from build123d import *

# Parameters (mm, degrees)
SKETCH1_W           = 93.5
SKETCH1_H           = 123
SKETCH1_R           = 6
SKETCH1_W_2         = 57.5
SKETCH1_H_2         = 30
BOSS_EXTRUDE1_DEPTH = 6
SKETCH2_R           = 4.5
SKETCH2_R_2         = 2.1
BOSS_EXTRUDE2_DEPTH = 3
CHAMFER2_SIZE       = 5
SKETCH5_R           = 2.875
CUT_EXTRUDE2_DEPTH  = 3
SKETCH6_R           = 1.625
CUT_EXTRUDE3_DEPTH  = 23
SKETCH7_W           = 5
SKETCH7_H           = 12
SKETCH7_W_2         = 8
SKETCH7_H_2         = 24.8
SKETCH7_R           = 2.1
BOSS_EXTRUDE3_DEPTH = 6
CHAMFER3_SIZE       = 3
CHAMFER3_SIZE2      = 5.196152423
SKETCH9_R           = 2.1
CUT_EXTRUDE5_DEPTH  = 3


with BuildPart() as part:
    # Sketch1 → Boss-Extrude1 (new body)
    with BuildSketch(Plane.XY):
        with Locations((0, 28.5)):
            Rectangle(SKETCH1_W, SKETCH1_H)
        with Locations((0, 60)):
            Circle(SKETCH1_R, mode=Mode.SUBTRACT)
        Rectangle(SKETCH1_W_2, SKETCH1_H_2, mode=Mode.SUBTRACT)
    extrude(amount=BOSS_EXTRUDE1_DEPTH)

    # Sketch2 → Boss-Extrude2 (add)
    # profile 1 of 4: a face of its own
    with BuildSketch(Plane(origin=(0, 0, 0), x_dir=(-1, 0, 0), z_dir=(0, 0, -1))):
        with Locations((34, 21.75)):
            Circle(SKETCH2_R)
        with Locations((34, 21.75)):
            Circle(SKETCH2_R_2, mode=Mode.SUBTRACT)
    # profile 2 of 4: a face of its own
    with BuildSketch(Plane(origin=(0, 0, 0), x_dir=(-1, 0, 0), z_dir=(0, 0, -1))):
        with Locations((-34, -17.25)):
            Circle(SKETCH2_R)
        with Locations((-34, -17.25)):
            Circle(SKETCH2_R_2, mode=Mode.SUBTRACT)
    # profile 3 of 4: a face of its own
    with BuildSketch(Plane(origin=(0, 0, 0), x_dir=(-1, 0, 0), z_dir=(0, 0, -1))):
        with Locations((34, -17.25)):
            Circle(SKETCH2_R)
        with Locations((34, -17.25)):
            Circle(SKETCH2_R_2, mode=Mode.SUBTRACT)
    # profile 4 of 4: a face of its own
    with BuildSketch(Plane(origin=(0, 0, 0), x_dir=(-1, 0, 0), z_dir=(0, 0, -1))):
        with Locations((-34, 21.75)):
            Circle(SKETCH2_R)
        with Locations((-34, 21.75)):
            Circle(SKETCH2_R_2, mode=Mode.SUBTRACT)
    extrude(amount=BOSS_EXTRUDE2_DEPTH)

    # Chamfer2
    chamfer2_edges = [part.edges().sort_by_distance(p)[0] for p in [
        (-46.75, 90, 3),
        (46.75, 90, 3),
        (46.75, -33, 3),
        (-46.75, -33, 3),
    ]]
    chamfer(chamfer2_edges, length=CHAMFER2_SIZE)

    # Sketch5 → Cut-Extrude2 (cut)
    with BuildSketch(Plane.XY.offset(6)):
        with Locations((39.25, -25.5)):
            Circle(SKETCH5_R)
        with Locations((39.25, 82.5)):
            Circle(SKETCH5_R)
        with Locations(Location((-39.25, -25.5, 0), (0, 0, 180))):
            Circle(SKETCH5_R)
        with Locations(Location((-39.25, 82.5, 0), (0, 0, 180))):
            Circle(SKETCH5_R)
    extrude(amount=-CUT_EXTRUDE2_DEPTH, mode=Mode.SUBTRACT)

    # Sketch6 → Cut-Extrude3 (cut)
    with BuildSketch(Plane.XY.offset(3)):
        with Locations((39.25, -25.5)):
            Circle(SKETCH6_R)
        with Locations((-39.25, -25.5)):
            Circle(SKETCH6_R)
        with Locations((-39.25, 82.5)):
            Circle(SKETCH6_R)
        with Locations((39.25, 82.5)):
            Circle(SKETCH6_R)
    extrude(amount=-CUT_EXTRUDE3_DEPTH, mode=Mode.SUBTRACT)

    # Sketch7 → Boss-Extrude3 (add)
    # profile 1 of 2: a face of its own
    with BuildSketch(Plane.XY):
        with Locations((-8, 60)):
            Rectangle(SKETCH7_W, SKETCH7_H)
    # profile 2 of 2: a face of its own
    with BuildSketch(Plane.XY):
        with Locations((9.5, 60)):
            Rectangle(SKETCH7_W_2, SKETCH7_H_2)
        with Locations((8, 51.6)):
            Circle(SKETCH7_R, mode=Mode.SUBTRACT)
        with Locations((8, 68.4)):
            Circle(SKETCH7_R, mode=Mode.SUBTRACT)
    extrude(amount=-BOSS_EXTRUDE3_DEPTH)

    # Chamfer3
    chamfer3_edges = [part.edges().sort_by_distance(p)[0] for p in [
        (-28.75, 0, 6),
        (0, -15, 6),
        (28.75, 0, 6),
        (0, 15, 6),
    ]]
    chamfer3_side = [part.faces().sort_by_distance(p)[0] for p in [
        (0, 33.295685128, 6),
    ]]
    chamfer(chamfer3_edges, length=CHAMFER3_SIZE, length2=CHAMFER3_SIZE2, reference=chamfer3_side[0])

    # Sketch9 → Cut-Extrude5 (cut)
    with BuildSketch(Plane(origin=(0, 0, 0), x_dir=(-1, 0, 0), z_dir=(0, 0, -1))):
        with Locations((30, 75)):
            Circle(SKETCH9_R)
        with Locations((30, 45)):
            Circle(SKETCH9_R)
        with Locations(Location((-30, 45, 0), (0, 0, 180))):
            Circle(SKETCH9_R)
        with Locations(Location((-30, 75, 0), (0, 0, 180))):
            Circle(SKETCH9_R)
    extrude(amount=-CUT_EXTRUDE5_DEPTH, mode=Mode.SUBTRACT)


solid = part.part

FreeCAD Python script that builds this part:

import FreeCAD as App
import Part
import Sketcher
from FreeCAD import Vector
Q = App.Units.Quantity


def edges_at(feature, points):
    """Names of the edges that pass closest to the given points."""
    edges = feature.Shape.Edges
    near = lambda p: min(range(len(edges)), key=lambda i: edges[i].distToShape(Part.Vertex(*p))[0])
    return sorted({f"Edge{near(p) + 1}" for p in points})


def add_polygon(sketch, points):
    """Adds a closed chain of lines whose ends are joined by coincident constraints."""
    first, n = sketch.GeometryCount, len(points)
    for a, b in zip(points, points[1:] + points[:1]):
        sketch.addGeometry(Part.LineSegment(App.Vector(*a, 0), App.Vector(*b, 0)), False)
    for i in range(n):
        sketch.addConstraint(Sketcher.Constraint("Coincident", first + i, 2, first + (i + 1) % n, 1))

doc = App.newDocument("Part")
body = doc.addObject("PartDesign::Body", "Body")

# Sketch on XY plane
sketch1 = body.newObject("Sketcher::SketchObject", "Sketch")
sketch1.AttachmentSupport = (doc.getObject("XY_Plane"), [""])
sketch1.MapMode = "FlatFace"
add_polygon(sketch1, [(-47, 90), (-47, -33), (47, -33), (47, 90)])  # lines 0-3
add_polygon(sketch1, [(29, -15), (-29, -15), (-29, 15), (29, 15)])  # lines 4-7
sketch1.addGeometry(Part.Circle(Vector(0, 60, 0), Vector(0, 0, 1), 6), False)  # 8
sketch1.addConstraint(Sketcher.Constraint("Vertical", 0))
sketch1.addConstraint(Sketcher.Constraint("Horizontal", 1))
sketch1.addConstraint(Sketcher.Constraint("Vertical", 2))
sketch1.addConstraint(Sketcher.Constraint("Horizontal", 3))
sketch1.addConstraint(Sketcher.Constraint("Horizontal", 4))
sketch1.addConstraint(Sketcher.Constraint("Vertical", 5))
sketch1.addConstraint(Sketcher.Constraint("Horizontal", 6))
sketch1.addConstraint(Sketcher.Constraint("Vertical", 7))
sketch1.addConstraint(Sketcher.Constraint("Symmetric", 4, 2, 6, 2, -1, 1))
sketch1.addConstraint(Sketcher.Constraint("PointOnObject", 8, 3, -2))
sketch1.addConstraint(Sketcher.Constraint("Diameter", 8, Q("12 mm")))
sketch1.addConstraint(Sketcher.Constraint("DistanceY", 0, 2, 0, 1, Q("123 mm")))
sketch1.addConstraint(Sketcher.Constraint("DistanceY", 5, 1, 5, 2, Q("30 mm")))
sketch1.addConstraint(Sketcher.Constraint("DistanceX", 1, 1, 1, 2, Q("93.5 mm")))
sketch1.addConstraint(Sketcher.Constraint("DistanceX", 4, 2, 4, 1, Q("57.5 mm")))
sketch1.addConstraint(Sketcher.Constraint("DistanceY", -1, 1, 8, 3, Q("60 mm")))
sketch1.addConstraint(Sketcher.Constraint("DistanceY", 0, 2, -1, 1, Q("33 mm")))
sketch1.addConstraint(Sketcher.Constraint("DistanceX", 0, 2, 4, 2, Q("18 mm")))
pad1 = body.newObject("PartDesign::Pad", "Pad")
pad1.Profile = sketch1
pad1.Length = 6

# Sketch on XY plane
sketch2 = body.newObject("Sketcher::SketchObject", "Sketch001")
sketch2.AttachmentSupport = (doc.getObject("XY_Plane"), [""])
sketch2.MapMode = "FlatFace"
sketch2.addGeometry(Part.Circle(Vector(-34, 21.8, 0), Vector(0, 0, 1), 4.5), False)
sketch2.addGeometry(Part.Circle(Vector(-34, 21.8, 0), Vector(0, 0, 1), 2.1), False)
sketch2.addGeometry(Part.Circle(Vector(34, -17.2, 0), Vector(0, 0, 1), 4.5), False)
sketch2.addGeometry(Part.Circle(Vector(34, -17.2, 0), Vector(0, 0, 1), 2.1), False)
sketch2.addGeometry(Part.Circle(Vector(-34, -17.2, 0), Vector(0, 0, 1), 4.5), False)
sketch2.addGeometry(Part.Circle(Vector(-34, -17.2, 0), Vector(0, 0, 1), 2.1), False)
sketch2.addGeometry(Part.Circle(Vector(34, 21.8, 0), Vector(0, 0, 1), 4.5), False)
sketch2.addGeometry(Part.Circle(Vector(34, 21.8, 0), Vector(0, 0, 1), 2.1), False)
sketch2.addConstraint(Sketcher.Constraint("Coincident", 1, 3, 0, 3))
sketch2.addConstraint(Sketcher.Constraint("Coincident", 3, 3, 2, 3))
sketch2.addConstraint(Sketcher.Constraint("Coincident", 5, 3, 4, 3))
sketch2.addConstraint(Sketcher.Constraint("Coincident", 7, 3, 6, 3))
sketch2.addConstraint(Sketcher.Constraint("Equal", 0, 2))
sketch2.addConstraint(Sketcher.Constraint("Equal", 1, 3))
sketch2.addConstraint(Sketcher.Constraint("Equal", 2, 4))
sketch2.addConstraint(Sketcher.Constraint("Equal", 3, 5))
sketch2.addConstraint(Sketcher.Constraint("Equal", 4, 6))
sketch2.addConstraint(Sketcher.Constraint("Equal", 5, 7))
sketch2.addConstraint(Sketcher.Constraint("Symmetric", 2, 3, 4, 3, -2))
sketch2.addConstraint(Sketcher.Constraint("Symmetric", 0, 3, 6, 3, -2))
sketch2.addConstraint(Sketcher.Constraint("Vertical", 1, 3, 4, 3))
sketch2.addConstraint(Sketcher.Constraint("Diameter", 0, Q("9 mm")))
sketch2.addConstraint(Sketcher.Constraint("Diameter", 1, Q("4.2 mm")))
sketch2.addConstraint(Sketcher.Constraint("DistanceX", 0, 3, -1, 1, Q("34 mm")))
sketch2.addConstraint(Sketcher.Constraint("DistanceY", 2, 3, 0, 3, Q("39 mm")))
sketch2.addConstraint(Sketcher.Constraint("DistanceY", -1, 1, 0, 3, Q("21.75 mm")))
pad2 = body.newObject("PartDesign::Pad", "Pad001")
pad2.Profile = sketch2
pad2.Length = 3
pad2.Reversed = True
doc.recompute()

chamfer = body.newObject("PartDesign::Chamfer", "Chamfer")
chamfer.Base = (pad2, edges_at(pad2, [
    (-46.75, 90, 3),
    (46.75, 90, 3),
    (46.75, -33, 3),
    (-46.75, -33, 3),
]))
chamfer.Size = 5

# Sketch on XY plane
sketch3 = body.newObject("Sketcher::SketchObject", "Sketch002")
sketch3.AttachmentSupport = (doc.getObject("XY_Plane"), [""])
sketch3.MapMode = "FlatFace"
sketch3.AttachmentOffset = App.Placement(Vector(0, 0, 6), App.Rotation())
sketch3.addGeometry(Part.Circle(Vector(39.2, -25.5, 0), Vector(0, 0, 1), 2.9), False)
sketch3.addGeometry(Part.Circle(Vector(39.2, 82.5, 0), Vector(0, 0, 1), 2.9), False)
sketch3.addGeometry(Part.Circle(Vector(-39.2, -25.5, 0), Vector(0, 0, 1), 2.9), False)
sketch3.addGeometry(Part.Circle(Vector(-39.2, 82.5, 0), Vector(0, 0, 1), 2.9), False)
sketch3.addConstraint(Sketcher.Constraint("Equal", 0, 1))
sketch3.addConstraint(Sketcher.Constraint("Equal", 1, 2))
sketch3.addConstraint(Sketcher.Constraint("Equal", 2, 3))
sketch3.addConstraint(Sketcher.Constraint("Symmetric", 0, 3, 2, 3, -2))
sketch3.addConstraint(Sketcher.Constraint("Symmetric", 1, 3, 3, 3, -2))
sketch3.addConstraint(Sketcher.Constraint("Vertical", 0, 3, 1, 3))
sketch3.addConstraint(Sketcher.Constraint("Diameter", 0, Q("5.75 mm")))
sketch3.addConstraint(Sketcher.Constraint("DistanceY", 0, 3, 1, 3, Q("108 mm")))
sketch3.addConstraint(Sketcher.Constraint("DistanceY", 0, 3, -1, 1, Q("25.5 mm")))
sketch3.addConstraint(Sketcher.Constraint("DistanceX", 2, 3, 0, 3, Q("78.5 mm")))
pocket1 = body.newObject("PartDesign::Pocket", "Pocket")
pocket1.Profile = sketch3
pocket1.Length = 3

# Sketch on XY plane
sketch4 = body.newObject("Sketcher::SketchObject", "Sketch003")
sketch4.AttachmentSupport = (doc.getObject("XY_Plane"), [""])
sketch4.MapMode = "FlatFace"
sketch4.AttachmentOffset = App.Placement(Vector(0, 0, 3), App.Rotation())
sketch4.addGeometry(Part.Circle(Vector(39.2, -25.5, 0), Vector(0, 0, 1), 1.6), False)
sketch4.addGeometry(Part.Circle(Vector(-39.2, -25.5, 0), Vector(0, 0, 1), 1.6), False)
sketch4.addGeometry(Part.Circle(Vector(-39.2, 82.5, 0), Vector(0, 0, 1), 1.6), False)
sketch4.addGeometry(Part.Circle(Vector(39.2, 82.5, 0), Vector(0, 0, 1), 1.6), False)
sketch4.addConstraint(Sketcher.Constraint("Equal", 0, 1))
sketch4.addConstraint(Sketcher.Constraint("Equal", 1, 2))
sketch4.addConstraint(Sketcher.Constraint("Equal", 2, 3))
sketch4.addConstraint(Sketcher.Constraint("Symmetric", 0, 3, 1, 3, -2))
sketch4.addConstraint(Sketcher.Constraint("Symmetric", 2, 3, 3, 3, -2))
sketch4.addConstraint(Sketcher.Constraint("Vertical", 1, 3, 2, 3))
sketch4.addConstraint(Sketcher.Constraint("Diameter", 0, Q("3.25 mm")))
sketch4.addConstraint(Sketcher.Constraint("DistanceY", 1, 3, 2, 3, Q("108 mm")))
sketch4.addConstraint(Sketcher.Constraint("DistanceY", 0, 3, -1, 1, Q("25.5 mm")))
sketch4.addConstraint(Sketcher.Constraint("DistanceX", 1, 3, 0, 3, Q("78.5 mm")))
pocket2 = body.newObject("PartDesign::Pocket", "Pocket001")
pocket2.Profile = sketch4
pocket2.Length = 23

# Sketch on XY plane
sketch5 = body.newObject("Sketcher::SketchObject", "Sketch004")
sketch5.AttachmentSupport = (doc.getObject("XY_Plane"), [""])
sketch5.MapMode = "FlatFace"
add_polygon(sketch5, [(-10.5, 66), (-10.5, 54), (-5.5, 54), (-5.5, 66)])  # lines 0-3
add_polygon(sketch5, [(5.5, 72.4), (5.5, 47.6), (13.5, 47.6), (13.5, 72.4)])  # lines 4-7
sketch5.addGeometry(Part.Circle(Vector(8, 51.6, 0), Vector(0, 0, 1), 2.1), False)  # 8
sketch5.addGeometry(Part.Circle(Vector(8, 68.4, 0), Vector(0, 0, 1), 2.1), False)  # 9
sketch5.addConstraint(Sketcher.Constraint("Vertical", 0))
sketch5.addConstraint(Sketcher.Constraint("Horizontal", 1))
sketch5.addConstraint(Sketcher.Constraint("Vertical", 2))
sketch5.addConstraint(Sketcher.Constraint("Horizontal", 3))
sketch5.addConstraint(Sketcher.Constraint("Vertical", 4))
sketch5.addConstraint(Sketcher.Constraint("Horizontal", 5))
sketch5.addConstraint(Sketcher.Constraint("Vertical", 6))
sketch5.addConstraint(Sketcher.Constraint("Horizontal", 7))
sketch5.addConstraint(Sketcher.Constraint("Equal", 8, 9))
sketch5.addConstraint(Sketcher.Constraint("Vertical", 8, 3, 9, 3))
sketch5.addConstraint(Sketcher.Constraint("Diameter", 8, Q("4.2 mm")))
sketch5.addConstraint(Sketcher.Constraint("DistanceX", 1, 1, 1, 2, Q("5 mm")))
sketch5.addConstraint(Sketcher.Constraint("DistanceX", 5, 1, 5, 2, Q("8 mm")))
sketch5.addConstraint(Sketcher.Constraint("DistanceY", 0, 2, 0, 1, Q("12 mm")))
sketch5.addConstraint(Sketcher.Constraint("DistanceY", 4, 2, 4, 1, Q("24.8 mm")))
sketch5.addConstraint(Sketcher.Constraint("DistanceX", -1, 1, 8, 3, Q("8 mm")))
sketch5.addConstraint(Sketcher.Constraint("DistanceY", -1, 1, 0, 2, Q("54 mm")))
sketch5.addConstraint(Sketcher.Constraint("DistanceY", 4, 2, 8, 3, Q("4 mm")))
sketch5.addConstraint(Sketcher.Constraint("DistanceX", 1, 2, 4, 2, Q("11 mm")))
sketch5.addConstraint(Sketcher.Constraint("DistanceY", 9, 3, 6, 2, Q("4 mm")))
sketch5.addConstraint(Sketcher.Constraint("DistanceY", -1, 1, 8, 3, Q("51.6 mm")))
sketch5.addConstraint(Sketcher.Constraint("DistanceX", 0, 2, -1, 1, Q("10.5 mm")))
pad3 = body.newObject("PartDesign::Pad", "Pad002")
pad3.Profile = sketch5
pad3.Length = 6
pad3.Reversed = True
doc.recompute()

chamfer2 = body.newObject("PartDesign::Chamfer", "Chamfer001")
chamfer2.Base = (pad3, edges_at(pad3, [
    (-28.75, 0, 6),
    (0, -15, 6),
    (28.75, 0, 6),
    (0, 15, 6),
]))
chamfer2.ChamferType = "Two distances"
chamfer2.Size = 3
chamfer2.Size2 = 5.196152

# Sketch on XY plane
sketch6 = body.newObject("Sketcher::SketchObject", "Sketch005")
sketch6.AttachmentSupport = (doc.getObject("XY_Plane"), [""])
sketch6.MapMode = "FlatFace"
sketch6.addGeometry(Part.Circle(Vector(-30, 75, 0), Vector(0, 0, 1), 2.1), False)
sketch6.addGeometry(Part.Circle(Vector(-30, 45, 0), Vector(0, 0, 1), 2.1), False)
sketch6.addGeometry(Part.Circle(Vector(30, 45, 0), Vector(0, 0, 1), 2.1), False)
sketch6.addGeometry(Part.Circle(Vector(30, 75, 0), Vector(0, 0, 1), 2.1), False)
sketch6.addConstraint(Sketcher.Constraint("Equal", 0, 1))
sketch6.addConstraint(Sketcher.Constraint("Equal", 1, 2))
sketch6.addConstraint(Sketcher.Constraint("Equal", 2, 3))
sketch6.addConstraint(Sketcher.Constraint("Symmetric", 1, 3, 2, 3, -2))
sketch6.addConstraint(Sketcher.Constraint("Symmetric", 0, 3, 3, 3, -2))
sketch6.addConstraint(Sketcher.Constraint("Vertical", 0, 3, 1, 3))
sketch6.addConstraint(Sketcher.Constraint("Diameter", 0, Q("4.2 mm")))
sketch6.addConstraint(Sketcher.Constraint("DistanceX", 0, 3, -1, 1, Q("30 mm")))
sketch6.addConstraint(Sketcher.Constraint("DistanceY", -1, 1, 0, 3, Q("75 mm")))
sketch6.addConstraint(Sketcher.Constraint("DistanceY", -1, 1, 1, 3, Q("45 mm")))
pocket3 = body.newObject("PartDesign::Pocket", "Pocket002")
pocket3.Profile = sketch6
pocket3.Length = 3
pocket3.Reversed = True

doc.recompute()
